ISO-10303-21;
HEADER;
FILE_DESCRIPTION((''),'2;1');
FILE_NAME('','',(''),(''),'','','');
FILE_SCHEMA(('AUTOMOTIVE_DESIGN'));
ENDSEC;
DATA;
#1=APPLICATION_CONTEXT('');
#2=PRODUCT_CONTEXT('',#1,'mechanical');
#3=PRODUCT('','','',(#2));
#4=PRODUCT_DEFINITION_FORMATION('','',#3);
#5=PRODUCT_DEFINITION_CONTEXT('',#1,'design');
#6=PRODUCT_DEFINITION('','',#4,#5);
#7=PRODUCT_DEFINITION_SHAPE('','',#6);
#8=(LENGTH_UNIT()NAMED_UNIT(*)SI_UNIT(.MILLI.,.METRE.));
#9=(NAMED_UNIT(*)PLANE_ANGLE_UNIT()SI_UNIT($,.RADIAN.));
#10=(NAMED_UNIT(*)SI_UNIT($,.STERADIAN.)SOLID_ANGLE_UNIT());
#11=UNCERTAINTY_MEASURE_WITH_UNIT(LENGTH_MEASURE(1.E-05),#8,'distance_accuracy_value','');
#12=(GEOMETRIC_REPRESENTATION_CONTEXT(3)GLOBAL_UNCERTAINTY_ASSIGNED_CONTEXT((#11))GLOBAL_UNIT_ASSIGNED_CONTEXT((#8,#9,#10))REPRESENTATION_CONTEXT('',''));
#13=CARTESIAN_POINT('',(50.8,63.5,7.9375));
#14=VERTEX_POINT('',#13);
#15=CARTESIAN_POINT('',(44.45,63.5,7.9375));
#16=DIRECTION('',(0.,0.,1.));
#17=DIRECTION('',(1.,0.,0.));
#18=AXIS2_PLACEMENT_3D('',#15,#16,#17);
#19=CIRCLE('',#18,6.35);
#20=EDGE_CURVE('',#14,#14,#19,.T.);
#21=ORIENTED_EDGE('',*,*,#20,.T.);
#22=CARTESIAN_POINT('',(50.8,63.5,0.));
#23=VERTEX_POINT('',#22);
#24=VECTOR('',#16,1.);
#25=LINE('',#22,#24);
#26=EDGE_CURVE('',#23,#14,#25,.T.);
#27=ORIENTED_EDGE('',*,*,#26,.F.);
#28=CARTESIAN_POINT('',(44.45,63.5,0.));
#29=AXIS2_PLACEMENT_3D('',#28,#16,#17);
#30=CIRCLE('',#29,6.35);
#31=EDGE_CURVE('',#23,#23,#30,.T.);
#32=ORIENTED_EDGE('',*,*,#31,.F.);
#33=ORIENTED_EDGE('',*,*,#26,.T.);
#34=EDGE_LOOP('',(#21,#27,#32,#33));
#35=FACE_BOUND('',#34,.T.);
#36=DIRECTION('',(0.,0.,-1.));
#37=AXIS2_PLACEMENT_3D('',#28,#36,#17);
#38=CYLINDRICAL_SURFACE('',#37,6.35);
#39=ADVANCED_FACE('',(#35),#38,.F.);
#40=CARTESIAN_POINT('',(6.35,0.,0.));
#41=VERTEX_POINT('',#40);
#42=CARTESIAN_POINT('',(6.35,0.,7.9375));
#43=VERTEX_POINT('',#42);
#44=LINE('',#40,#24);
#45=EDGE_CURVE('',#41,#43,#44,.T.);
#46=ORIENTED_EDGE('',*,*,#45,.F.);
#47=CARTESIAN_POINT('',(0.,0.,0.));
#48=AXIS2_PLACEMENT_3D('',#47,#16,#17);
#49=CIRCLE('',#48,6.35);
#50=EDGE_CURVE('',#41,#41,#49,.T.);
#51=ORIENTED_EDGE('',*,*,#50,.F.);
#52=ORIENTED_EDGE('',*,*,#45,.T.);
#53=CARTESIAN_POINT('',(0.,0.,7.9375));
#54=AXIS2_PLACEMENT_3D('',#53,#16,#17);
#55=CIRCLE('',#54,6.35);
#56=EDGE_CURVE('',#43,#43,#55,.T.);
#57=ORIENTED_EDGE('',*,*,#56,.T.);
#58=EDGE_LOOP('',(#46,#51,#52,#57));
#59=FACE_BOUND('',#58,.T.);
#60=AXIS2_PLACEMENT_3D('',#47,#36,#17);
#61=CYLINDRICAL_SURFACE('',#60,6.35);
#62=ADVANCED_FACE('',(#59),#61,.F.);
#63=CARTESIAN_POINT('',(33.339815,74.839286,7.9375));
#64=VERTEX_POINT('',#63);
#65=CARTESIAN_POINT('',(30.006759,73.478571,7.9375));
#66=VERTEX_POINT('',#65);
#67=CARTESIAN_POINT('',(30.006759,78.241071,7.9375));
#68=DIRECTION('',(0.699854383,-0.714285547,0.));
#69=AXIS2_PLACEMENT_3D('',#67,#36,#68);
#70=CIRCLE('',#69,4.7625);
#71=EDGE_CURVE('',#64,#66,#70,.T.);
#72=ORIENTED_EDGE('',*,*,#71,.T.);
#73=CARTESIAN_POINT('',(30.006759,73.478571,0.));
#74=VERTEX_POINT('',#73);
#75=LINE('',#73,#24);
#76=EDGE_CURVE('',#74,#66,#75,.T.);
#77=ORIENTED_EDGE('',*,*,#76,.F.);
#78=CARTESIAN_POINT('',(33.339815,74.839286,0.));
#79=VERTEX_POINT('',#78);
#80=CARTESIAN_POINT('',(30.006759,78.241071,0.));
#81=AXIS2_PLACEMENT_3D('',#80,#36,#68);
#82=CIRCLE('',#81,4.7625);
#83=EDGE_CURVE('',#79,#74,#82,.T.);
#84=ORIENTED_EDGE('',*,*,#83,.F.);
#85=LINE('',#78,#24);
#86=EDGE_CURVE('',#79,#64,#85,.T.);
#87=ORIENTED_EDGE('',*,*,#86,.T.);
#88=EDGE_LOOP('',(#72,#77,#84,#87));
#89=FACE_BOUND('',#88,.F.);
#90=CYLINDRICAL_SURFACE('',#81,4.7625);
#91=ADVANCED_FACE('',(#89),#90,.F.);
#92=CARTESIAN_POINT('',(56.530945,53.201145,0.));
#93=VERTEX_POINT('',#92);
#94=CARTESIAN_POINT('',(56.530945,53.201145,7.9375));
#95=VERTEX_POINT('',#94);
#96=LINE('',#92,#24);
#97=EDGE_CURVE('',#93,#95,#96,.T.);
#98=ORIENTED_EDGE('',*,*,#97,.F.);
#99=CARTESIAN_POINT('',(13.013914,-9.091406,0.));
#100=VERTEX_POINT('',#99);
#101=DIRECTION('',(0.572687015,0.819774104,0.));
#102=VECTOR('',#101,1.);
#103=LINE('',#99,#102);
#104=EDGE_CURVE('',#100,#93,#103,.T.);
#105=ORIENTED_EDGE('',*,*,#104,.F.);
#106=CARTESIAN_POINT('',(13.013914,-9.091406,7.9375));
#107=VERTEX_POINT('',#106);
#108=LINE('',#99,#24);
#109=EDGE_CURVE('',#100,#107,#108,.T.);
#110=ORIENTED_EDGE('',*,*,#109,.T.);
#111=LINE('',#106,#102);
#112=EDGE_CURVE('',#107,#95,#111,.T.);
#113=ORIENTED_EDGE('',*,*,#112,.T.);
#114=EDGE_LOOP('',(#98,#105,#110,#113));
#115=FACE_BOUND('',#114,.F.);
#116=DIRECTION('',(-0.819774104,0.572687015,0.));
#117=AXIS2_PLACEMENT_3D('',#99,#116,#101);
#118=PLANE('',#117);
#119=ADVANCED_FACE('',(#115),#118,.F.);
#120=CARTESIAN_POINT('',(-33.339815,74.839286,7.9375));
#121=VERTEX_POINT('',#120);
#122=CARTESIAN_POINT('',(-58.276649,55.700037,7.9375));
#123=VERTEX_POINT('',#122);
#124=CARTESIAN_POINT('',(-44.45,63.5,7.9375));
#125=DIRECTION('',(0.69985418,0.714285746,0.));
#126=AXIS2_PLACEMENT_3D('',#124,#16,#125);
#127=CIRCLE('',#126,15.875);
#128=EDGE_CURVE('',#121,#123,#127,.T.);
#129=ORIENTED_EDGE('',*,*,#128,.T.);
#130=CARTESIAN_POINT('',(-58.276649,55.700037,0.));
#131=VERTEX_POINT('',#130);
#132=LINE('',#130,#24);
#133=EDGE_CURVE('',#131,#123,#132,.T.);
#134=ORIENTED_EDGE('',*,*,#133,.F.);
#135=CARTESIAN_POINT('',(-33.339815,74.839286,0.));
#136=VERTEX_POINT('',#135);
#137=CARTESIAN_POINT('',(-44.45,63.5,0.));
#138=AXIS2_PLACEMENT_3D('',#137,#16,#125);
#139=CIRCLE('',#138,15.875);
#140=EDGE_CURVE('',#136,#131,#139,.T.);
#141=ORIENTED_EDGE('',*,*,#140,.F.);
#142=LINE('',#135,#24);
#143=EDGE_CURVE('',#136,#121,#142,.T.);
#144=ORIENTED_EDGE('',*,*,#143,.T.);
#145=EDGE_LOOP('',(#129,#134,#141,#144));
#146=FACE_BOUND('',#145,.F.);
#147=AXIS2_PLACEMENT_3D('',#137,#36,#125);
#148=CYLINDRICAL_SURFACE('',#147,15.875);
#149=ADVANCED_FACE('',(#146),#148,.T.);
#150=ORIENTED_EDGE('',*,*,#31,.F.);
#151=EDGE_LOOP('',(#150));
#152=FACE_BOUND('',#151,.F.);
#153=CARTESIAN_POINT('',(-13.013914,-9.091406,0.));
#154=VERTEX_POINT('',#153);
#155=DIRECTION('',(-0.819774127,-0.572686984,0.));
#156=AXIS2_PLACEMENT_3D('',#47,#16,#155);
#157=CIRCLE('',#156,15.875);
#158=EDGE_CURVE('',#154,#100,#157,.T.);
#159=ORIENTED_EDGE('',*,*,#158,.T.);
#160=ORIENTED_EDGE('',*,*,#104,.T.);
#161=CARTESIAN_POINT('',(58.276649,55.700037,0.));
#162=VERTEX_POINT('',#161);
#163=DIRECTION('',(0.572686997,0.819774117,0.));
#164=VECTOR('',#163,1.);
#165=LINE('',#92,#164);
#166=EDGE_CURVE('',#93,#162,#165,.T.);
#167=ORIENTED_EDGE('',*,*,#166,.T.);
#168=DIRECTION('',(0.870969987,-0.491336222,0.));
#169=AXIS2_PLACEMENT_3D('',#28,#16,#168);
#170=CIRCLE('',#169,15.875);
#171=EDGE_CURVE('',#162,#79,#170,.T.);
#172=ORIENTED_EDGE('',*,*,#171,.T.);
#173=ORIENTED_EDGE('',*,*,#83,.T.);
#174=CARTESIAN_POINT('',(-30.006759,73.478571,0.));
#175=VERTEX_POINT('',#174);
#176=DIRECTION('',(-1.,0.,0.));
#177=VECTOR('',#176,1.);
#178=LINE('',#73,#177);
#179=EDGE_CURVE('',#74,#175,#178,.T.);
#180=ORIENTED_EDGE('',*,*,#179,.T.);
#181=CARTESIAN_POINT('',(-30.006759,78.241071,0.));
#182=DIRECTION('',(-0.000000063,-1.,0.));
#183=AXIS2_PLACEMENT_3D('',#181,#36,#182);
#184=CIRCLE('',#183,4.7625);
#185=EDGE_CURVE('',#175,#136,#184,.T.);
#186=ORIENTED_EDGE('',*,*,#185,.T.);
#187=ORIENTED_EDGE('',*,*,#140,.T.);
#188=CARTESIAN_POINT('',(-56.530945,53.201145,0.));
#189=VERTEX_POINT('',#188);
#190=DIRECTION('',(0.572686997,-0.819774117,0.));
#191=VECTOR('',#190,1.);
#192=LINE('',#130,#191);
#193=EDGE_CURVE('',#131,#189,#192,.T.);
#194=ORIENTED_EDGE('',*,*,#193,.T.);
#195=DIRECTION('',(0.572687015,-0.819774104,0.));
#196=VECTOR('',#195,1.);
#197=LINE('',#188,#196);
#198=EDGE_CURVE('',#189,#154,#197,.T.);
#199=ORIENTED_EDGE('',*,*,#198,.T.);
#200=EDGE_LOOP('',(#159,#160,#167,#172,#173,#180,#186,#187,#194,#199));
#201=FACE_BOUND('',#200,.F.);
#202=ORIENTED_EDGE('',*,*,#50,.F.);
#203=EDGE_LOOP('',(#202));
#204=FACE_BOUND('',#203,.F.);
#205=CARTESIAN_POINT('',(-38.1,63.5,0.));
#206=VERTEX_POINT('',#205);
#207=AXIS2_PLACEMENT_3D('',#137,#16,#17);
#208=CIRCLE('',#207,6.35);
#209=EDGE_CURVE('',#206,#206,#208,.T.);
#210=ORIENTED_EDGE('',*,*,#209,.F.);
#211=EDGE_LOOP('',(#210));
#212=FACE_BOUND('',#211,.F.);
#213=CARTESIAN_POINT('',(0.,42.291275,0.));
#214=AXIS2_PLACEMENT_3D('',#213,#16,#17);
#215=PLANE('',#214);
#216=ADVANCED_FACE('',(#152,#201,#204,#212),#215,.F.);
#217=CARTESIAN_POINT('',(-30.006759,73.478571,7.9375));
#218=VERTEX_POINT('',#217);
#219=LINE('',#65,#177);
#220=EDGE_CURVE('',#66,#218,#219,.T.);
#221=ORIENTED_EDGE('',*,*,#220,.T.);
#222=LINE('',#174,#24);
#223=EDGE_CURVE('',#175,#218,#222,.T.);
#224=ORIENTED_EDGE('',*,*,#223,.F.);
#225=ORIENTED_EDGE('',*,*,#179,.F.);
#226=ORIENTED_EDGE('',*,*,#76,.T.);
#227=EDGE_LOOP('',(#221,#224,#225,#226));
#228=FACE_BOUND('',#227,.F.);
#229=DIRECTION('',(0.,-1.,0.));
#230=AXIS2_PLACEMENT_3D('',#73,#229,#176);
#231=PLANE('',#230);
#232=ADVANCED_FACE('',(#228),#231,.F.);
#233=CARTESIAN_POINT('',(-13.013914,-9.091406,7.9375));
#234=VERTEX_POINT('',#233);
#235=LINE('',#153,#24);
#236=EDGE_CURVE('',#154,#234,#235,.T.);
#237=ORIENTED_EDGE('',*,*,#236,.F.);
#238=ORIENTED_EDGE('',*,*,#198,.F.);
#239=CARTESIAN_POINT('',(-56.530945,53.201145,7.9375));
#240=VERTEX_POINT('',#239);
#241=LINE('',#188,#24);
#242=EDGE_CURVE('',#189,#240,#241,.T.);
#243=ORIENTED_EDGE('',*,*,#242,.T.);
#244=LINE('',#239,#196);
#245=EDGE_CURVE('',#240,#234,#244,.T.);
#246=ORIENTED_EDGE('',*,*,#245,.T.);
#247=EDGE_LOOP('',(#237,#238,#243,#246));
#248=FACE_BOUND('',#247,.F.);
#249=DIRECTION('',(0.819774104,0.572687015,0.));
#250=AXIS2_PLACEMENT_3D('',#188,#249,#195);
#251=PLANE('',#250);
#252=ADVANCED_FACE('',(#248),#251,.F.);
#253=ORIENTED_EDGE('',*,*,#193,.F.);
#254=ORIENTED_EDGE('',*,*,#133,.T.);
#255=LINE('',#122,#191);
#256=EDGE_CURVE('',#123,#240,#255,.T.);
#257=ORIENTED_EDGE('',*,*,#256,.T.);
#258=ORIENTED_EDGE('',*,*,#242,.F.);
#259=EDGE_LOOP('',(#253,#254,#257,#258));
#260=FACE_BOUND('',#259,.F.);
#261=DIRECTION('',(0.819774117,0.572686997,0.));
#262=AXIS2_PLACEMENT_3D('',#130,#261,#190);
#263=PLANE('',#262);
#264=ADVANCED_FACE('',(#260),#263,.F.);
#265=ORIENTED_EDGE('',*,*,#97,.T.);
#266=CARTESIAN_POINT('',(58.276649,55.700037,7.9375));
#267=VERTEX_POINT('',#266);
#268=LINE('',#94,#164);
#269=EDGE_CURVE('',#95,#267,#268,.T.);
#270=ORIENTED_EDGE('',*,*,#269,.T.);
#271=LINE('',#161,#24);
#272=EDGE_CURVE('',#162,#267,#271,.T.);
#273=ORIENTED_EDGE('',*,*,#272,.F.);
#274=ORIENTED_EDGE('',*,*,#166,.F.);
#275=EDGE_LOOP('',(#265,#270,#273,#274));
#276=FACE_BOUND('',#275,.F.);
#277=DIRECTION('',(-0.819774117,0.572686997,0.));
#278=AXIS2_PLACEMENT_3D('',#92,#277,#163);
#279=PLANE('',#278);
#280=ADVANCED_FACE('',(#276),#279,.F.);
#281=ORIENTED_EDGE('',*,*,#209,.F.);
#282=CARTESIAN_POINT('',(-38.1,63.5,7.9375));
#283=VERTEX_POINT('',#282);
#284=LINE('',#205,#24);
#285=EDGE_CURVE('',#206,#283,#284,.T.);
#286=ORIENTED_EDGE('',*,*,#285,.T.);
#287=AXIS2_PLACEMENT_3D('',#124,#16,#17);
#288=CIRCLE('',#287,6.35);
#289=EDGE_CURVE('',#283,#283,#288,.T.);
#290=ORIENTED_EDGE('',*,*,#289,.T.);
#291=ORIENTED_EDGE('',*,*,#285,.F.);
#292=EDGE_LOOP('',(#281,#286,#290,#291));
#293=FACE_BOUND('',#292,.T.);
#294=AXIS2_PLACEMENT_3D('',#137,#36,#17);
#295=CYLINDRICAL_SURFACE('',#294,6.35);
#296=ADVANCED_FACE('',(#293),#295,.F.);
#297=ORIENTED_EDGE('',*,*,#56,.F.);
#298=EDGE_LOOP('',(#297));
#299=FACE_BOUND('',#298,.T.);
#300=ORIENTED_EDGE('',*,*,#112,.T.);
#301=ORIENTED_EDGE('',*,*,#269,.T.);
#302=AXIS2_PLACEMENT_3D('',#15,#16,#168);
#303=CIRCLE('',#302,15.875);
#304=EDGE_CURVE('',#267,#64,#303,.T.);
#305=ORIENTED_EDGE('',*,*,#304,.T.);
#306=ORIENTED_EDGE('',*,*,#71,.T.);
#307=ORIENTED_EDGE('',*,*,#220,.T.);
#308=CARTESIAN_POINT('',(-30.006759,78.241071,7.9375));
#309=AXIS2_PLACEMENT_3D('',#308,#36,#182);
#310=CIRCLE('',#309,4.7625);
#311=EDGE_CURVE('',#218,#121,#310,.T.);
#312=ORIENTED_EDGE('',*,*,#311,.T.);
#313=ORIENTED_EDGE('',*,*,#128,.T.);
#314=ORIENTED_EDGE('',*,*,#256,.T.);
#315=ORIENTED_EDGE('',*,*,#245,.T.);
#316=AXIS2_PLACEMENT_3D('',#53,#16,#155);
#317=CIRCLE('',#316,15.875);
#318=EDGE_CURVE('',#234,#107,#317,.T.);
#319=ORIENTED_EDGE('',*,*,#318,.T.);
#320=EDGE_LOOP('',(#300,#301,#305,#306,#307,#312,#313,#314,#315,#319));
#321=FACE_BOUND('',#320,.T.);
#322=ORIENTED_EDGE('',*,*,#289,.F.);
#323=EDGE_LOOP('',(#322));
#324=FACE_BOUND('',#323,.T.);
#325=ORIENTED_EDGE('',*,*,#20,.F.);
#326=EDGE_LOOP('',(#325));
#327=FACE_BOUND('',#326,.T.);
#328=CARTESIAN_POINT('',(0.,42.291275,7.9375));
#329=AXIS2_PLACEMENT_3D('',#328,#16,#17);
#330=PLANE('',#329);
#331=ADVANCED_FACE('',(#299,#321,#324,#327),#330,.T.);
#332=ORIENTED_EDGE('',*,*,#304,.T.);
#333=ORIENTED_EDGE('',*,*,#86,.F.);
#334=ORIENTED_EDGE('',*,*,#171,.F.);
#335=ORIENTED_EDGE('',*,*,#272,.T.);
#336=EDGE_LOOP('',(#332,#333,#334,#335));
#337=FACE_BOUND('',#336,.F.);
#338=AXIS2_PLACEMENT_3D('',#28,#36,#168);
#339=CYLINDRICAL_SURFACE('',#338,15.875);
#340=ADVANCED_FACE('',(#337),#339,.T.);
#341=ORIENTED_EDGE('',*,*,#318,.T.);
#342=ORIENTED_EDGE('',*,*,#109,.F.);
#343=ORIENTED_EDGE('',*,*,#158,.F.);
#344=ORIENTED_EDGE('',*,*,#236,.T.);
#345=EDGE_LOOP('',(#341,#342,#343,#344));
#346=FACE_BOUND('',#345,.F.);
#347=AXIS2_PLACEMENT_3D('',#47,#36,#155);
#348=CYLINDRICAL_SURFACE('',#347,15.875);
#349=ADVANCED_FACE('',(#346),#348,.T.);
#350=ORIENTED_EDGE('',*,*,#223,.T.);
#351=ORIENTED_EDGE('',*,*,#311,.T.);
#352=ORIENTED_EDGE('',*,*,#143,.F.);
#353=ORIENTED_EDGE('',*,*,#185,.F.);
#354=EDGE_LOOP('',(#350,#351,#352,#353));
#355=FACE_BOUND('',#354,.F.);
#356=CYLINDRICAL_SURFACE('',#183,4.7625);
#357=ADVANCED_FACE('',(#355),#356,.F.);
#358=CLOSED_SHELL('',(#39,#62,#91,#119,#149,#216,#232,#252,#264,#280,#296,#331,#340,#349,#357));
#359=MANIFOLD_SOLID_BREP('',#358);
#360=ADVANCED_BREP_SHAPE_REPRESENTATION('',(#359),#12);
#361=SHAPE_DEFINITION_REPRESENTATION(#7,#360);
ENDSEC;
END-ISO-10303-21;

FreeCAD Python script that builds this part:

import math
import FreeCAD as App
import Part
import Sketcher
from FreeCAD import Vector
Q = App.Units.Quantity

doc = App.newDocument("Part")
body = doc.addObject("PartDesign::Body", "Body")

# Sketch on XY plane
sketch1 = body.newObject("Sketcher::SketchObject", "Sketch")
sketch1.AttachmentSupport = (doc.getObject("XY_Plane"), [""])
sketch1.MapMode = "FlatFace"
sketch1.addGeometry([
    Part.LineSegment(Vector(-56.530945, 53.201145, 0), Vector(-13.013914, -9.091406, 0)),  # 0
    Part.ArcOfCircle(Part.Circle(Vector(0, 0, 0), Vector(0, 0, 1), 15.875), math.radians(-145.062189), math.radians(-34.937811)),  # 1
    Part.LineSegment(Vector(13.013914, -9.091406, 0), Vector(56.530945, 53.201145, 0)),  # 2
    Part.LineSegment(Vector(56.530945, 53.201145, 0), Vector(58.276649, 55.700037, 0)),  # 3
    Part.ArcOfCircle(Part.Circle(Vector(44.45, 63.5, 0), Vector(0, 0, 1), 15.875), math.radians(-29.428445), math.radians(134.415306)),  # 4
    Part.ArcOfCircle(Part.Circle(Vector(30.006759, 78.241071, 0), Vector(0, 0, 1), 4.7625), math.radians(-89.999996), math.radians(-45.584678)),  # 5
    Part.LineSegment(Vector(30.006759, 73.478571, 0), Vector(-30.006759, 73.478571, 0)),  # 6
    Part.ArcOfCircle(Part.Circle(Vector(-30.006759, 78.241071, 0), Vector(0, 0, 1), 4.7625), math.radians(-134.415322), math.radians(-90.000004)),  # 7
    Part.ArcOfCircle(Part.Circle(Vector(-44.45, 63.5, 0), Vector(0, 0, 1), 15.875), math.radians(45.584694), math.radians(209.428445)),  # 8
    Part.LineSegment(Vector(-58.276649, 55.700037, 0), Vector(-56.530945, 53.201145, 0)),  # 9
    Part.Circle(Vector(0, 0, 0), Vector(0, 0, 1), 6.35),  # 10
    Part.Circle(Vector(-44.45, 63.5, 0), Vector(0, 0, 1), 6.35),  # 11
    Part.Circle(Vector(44.45, 63.5, 0), Vector(0, 0, 1), 6.35),  # 12
], False)
sketch1.addConstraint([
    Sketcher.Constraint("Tangent", 0, 2, 1, 1),
    Sketcher.Constraint("Tangent", 1, 2, 2, 1),
    Sketcher.Constraint("Coincident", 2, 2, 3, 1),
    Sketcher.Constraint("Coincident", 3, 2, 4, 1),
    Sketcher.Constraint("Tangent", 4, 2, 5, 2),
    Sketcher.Constraint("Tangent", 5, 1, 6, 1),
    Sketcher.Constraint("Tangent", 6, 2, 7, 2),
    Sketcher.Constraint("Tangent", 7, 1, 8, 1),
    Sketcher.Constraint("Coincident", 8, 2, 9, 1),
    Sketcher.Constraint("Coincident", 9, 2, 0, 1),
    Sketcher.Constraint("Horizontal", 6),
    Sketcher.Constraint("Coincident", 1, 3, -1, 1),
    Sketcher.Constraint("Coincident", 10, 3, -1, 1),
    Sketcher.Constraint("Coincident", 11, 3, 8, 3),
    Sketcher.Constraint("Coincident", 12, 3, 4, 3),
    Sketcher.Constraint("Equal", 1, 4),
    Sketcher.Constraint("Equal", 5, 7),
    Sketcher.Constraint("Equal", 4, 8),
    Sketcher.Constraint("Equal", 10, 11),
    Sketcher.Constraint("Equal", 11, 12),
    Sketcher.Constraint("Symmetric", 4, 3, 8, 3, -2),
    Sketcher.Constraint("Symmetric", 2, 2, 9, 2, -2),
    Sketcher.Constraint("Parallel", 2, 3),
    Sketcher.Constraint("Parallel", 0, 9),
    Sketcher.Constraint("Diameter", 10, Q("0.5 in")),
    Sketcher.Constraint("Radius", 1, Q("0.625 in")),
    Sketcher.Constraint("Radius", 5, Q("0.1875 in")),
    Sketcher.Constraint("DistanceY", -1, 1, 4, 3, Q("2.5 in")),
    Sketcher.Constraint("DistanceX", 8, 3, 4, 3, Q("3.5 in")),
    Sketcher.Constraint("Distance", 0, Q("75.987459 mm")),
    Sketcher.Constraint("Distance", 3, Q("3.048269 mm")),
    Sketcher.Constraint("DistanceX", 6, 2, 6, 1, Q("60.013518 mm")),
])
pad1 = body.newObject("PartDesign::Pad", "Pad")
pad1.Profile = sketch1
pad1.Length = Q("0.3125 in")

doc.recompute()
